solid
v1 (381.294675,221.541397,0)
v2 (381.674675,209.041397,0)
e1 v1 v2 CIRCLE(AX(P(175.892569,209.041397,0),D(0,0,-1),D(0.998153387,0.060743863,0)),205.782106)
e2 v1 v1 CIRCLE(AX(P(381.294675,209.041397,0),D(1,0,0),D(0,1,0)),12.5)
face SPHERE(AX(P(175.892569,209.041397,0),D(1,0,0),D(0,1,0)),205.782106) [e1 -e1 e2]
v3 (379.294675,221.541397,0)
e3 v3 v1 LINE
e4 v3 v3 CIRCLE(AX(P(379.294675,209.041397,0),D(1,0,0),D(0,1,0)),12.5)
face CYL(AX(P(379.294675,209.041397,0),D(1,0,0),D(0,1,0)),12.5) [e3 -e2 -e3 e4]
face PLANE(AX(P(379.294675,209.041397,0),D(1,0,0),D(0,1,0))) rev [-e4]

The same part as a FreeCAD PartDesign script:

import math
import FreeCAD as App
import Part
import Sketcher

V = App.Vector

doc = App.newDocument("Part")
body = doc.addObject("PartDesign::Body", "Body")

# Sketch on XY plane
sketch1 = body.newObject("Sketcher::SketchObject", "Sketch")
sketch1.AttachmentSupport = (doc.getObject("XY_Plane"), [""])
sketch1.MapMode = "FlatFace"
sketch1.addGeometry(Part.LineSegment(V(379.3, 221.5, 0), V(379.3, 209, 0)), False)
sketch1.addGeometry(Part.LineSegment(V(379.3, 209, 0), V(381.7, 209, 0)), False)
sketch1.addGeometry(Part.ArcOfCircle(Part.Circle(V(175.9, 209, 0), V(0, 0, 1), 205.8), math.radians(0), math.radians(3.48)), False)
sketch1.addGeometry(Part.LineSegment(V(381.3, 221.5, 0), V(379.3, 221.5, 0)), False)
sketch1.addGeometry(Part.LineSegment(V(175.9, 209, 0), V(381.7, 209, 0)), True)  # axis
sketch1.addConstraint(Sketcher.Constraint("Coincident", 0, 2, 1, 1))
sketch1.addConstraint(Sketcher.Constraint("Coincident", 1, 2, 2, 1))
sketch1.addConstraint(Sketcher.Constraint("Coincident", 2, 2, 3, 1))
sketch1.addConstraint(Sketcher.Constraint("Coincident", 3, 2, 0, 1))
sketch1.addConstraint(Sketcher.Constraint("Vertical", 0))
sketch1.addConstraint(Sketcher.Constraint("Horizontal", 1))
sketch1.addConstraint(Sketcher.Constraint("Horizontal", 3))
sketch1.addConstraint(Sketcher.Constraint("Horizontal", 4))
sketch1.addConstraint(Sketcher.Constraint("Coincident", 4, 1, 2, 3))
sketch1.addConstraint(Sketcher.Constraint("Coincident", 4, 2, 1, 2))
sketch1.addConstraint(Sketcher.Constraint("DistanceX", 3, 2, 3, 1, 2.0))
sketch1.addConstraint(Sketcher.Constraint("DistanceY", 0, 2, 0, 1, 12.5))
sketch1.addConstraint(Sketcher.Constraint("Radius", 2, 205.782106))
sketch1.addConstraint(Sketcher.Constraint("DistanceX", -1, 1, 2, 3, 175.892569))
sketch1.addConstraint(Sketcher.Constraint("DistanceY", -1, 1, 2, 3, 209.041397))
revolution = body.newObject("PartDesign::Revolution", "Revolution")
revolution.Profile = sketch1
revolution.ReferenceAxis = (sketch1, ["Axis0"])
revolution.Angle = 360

doc.recompute()
